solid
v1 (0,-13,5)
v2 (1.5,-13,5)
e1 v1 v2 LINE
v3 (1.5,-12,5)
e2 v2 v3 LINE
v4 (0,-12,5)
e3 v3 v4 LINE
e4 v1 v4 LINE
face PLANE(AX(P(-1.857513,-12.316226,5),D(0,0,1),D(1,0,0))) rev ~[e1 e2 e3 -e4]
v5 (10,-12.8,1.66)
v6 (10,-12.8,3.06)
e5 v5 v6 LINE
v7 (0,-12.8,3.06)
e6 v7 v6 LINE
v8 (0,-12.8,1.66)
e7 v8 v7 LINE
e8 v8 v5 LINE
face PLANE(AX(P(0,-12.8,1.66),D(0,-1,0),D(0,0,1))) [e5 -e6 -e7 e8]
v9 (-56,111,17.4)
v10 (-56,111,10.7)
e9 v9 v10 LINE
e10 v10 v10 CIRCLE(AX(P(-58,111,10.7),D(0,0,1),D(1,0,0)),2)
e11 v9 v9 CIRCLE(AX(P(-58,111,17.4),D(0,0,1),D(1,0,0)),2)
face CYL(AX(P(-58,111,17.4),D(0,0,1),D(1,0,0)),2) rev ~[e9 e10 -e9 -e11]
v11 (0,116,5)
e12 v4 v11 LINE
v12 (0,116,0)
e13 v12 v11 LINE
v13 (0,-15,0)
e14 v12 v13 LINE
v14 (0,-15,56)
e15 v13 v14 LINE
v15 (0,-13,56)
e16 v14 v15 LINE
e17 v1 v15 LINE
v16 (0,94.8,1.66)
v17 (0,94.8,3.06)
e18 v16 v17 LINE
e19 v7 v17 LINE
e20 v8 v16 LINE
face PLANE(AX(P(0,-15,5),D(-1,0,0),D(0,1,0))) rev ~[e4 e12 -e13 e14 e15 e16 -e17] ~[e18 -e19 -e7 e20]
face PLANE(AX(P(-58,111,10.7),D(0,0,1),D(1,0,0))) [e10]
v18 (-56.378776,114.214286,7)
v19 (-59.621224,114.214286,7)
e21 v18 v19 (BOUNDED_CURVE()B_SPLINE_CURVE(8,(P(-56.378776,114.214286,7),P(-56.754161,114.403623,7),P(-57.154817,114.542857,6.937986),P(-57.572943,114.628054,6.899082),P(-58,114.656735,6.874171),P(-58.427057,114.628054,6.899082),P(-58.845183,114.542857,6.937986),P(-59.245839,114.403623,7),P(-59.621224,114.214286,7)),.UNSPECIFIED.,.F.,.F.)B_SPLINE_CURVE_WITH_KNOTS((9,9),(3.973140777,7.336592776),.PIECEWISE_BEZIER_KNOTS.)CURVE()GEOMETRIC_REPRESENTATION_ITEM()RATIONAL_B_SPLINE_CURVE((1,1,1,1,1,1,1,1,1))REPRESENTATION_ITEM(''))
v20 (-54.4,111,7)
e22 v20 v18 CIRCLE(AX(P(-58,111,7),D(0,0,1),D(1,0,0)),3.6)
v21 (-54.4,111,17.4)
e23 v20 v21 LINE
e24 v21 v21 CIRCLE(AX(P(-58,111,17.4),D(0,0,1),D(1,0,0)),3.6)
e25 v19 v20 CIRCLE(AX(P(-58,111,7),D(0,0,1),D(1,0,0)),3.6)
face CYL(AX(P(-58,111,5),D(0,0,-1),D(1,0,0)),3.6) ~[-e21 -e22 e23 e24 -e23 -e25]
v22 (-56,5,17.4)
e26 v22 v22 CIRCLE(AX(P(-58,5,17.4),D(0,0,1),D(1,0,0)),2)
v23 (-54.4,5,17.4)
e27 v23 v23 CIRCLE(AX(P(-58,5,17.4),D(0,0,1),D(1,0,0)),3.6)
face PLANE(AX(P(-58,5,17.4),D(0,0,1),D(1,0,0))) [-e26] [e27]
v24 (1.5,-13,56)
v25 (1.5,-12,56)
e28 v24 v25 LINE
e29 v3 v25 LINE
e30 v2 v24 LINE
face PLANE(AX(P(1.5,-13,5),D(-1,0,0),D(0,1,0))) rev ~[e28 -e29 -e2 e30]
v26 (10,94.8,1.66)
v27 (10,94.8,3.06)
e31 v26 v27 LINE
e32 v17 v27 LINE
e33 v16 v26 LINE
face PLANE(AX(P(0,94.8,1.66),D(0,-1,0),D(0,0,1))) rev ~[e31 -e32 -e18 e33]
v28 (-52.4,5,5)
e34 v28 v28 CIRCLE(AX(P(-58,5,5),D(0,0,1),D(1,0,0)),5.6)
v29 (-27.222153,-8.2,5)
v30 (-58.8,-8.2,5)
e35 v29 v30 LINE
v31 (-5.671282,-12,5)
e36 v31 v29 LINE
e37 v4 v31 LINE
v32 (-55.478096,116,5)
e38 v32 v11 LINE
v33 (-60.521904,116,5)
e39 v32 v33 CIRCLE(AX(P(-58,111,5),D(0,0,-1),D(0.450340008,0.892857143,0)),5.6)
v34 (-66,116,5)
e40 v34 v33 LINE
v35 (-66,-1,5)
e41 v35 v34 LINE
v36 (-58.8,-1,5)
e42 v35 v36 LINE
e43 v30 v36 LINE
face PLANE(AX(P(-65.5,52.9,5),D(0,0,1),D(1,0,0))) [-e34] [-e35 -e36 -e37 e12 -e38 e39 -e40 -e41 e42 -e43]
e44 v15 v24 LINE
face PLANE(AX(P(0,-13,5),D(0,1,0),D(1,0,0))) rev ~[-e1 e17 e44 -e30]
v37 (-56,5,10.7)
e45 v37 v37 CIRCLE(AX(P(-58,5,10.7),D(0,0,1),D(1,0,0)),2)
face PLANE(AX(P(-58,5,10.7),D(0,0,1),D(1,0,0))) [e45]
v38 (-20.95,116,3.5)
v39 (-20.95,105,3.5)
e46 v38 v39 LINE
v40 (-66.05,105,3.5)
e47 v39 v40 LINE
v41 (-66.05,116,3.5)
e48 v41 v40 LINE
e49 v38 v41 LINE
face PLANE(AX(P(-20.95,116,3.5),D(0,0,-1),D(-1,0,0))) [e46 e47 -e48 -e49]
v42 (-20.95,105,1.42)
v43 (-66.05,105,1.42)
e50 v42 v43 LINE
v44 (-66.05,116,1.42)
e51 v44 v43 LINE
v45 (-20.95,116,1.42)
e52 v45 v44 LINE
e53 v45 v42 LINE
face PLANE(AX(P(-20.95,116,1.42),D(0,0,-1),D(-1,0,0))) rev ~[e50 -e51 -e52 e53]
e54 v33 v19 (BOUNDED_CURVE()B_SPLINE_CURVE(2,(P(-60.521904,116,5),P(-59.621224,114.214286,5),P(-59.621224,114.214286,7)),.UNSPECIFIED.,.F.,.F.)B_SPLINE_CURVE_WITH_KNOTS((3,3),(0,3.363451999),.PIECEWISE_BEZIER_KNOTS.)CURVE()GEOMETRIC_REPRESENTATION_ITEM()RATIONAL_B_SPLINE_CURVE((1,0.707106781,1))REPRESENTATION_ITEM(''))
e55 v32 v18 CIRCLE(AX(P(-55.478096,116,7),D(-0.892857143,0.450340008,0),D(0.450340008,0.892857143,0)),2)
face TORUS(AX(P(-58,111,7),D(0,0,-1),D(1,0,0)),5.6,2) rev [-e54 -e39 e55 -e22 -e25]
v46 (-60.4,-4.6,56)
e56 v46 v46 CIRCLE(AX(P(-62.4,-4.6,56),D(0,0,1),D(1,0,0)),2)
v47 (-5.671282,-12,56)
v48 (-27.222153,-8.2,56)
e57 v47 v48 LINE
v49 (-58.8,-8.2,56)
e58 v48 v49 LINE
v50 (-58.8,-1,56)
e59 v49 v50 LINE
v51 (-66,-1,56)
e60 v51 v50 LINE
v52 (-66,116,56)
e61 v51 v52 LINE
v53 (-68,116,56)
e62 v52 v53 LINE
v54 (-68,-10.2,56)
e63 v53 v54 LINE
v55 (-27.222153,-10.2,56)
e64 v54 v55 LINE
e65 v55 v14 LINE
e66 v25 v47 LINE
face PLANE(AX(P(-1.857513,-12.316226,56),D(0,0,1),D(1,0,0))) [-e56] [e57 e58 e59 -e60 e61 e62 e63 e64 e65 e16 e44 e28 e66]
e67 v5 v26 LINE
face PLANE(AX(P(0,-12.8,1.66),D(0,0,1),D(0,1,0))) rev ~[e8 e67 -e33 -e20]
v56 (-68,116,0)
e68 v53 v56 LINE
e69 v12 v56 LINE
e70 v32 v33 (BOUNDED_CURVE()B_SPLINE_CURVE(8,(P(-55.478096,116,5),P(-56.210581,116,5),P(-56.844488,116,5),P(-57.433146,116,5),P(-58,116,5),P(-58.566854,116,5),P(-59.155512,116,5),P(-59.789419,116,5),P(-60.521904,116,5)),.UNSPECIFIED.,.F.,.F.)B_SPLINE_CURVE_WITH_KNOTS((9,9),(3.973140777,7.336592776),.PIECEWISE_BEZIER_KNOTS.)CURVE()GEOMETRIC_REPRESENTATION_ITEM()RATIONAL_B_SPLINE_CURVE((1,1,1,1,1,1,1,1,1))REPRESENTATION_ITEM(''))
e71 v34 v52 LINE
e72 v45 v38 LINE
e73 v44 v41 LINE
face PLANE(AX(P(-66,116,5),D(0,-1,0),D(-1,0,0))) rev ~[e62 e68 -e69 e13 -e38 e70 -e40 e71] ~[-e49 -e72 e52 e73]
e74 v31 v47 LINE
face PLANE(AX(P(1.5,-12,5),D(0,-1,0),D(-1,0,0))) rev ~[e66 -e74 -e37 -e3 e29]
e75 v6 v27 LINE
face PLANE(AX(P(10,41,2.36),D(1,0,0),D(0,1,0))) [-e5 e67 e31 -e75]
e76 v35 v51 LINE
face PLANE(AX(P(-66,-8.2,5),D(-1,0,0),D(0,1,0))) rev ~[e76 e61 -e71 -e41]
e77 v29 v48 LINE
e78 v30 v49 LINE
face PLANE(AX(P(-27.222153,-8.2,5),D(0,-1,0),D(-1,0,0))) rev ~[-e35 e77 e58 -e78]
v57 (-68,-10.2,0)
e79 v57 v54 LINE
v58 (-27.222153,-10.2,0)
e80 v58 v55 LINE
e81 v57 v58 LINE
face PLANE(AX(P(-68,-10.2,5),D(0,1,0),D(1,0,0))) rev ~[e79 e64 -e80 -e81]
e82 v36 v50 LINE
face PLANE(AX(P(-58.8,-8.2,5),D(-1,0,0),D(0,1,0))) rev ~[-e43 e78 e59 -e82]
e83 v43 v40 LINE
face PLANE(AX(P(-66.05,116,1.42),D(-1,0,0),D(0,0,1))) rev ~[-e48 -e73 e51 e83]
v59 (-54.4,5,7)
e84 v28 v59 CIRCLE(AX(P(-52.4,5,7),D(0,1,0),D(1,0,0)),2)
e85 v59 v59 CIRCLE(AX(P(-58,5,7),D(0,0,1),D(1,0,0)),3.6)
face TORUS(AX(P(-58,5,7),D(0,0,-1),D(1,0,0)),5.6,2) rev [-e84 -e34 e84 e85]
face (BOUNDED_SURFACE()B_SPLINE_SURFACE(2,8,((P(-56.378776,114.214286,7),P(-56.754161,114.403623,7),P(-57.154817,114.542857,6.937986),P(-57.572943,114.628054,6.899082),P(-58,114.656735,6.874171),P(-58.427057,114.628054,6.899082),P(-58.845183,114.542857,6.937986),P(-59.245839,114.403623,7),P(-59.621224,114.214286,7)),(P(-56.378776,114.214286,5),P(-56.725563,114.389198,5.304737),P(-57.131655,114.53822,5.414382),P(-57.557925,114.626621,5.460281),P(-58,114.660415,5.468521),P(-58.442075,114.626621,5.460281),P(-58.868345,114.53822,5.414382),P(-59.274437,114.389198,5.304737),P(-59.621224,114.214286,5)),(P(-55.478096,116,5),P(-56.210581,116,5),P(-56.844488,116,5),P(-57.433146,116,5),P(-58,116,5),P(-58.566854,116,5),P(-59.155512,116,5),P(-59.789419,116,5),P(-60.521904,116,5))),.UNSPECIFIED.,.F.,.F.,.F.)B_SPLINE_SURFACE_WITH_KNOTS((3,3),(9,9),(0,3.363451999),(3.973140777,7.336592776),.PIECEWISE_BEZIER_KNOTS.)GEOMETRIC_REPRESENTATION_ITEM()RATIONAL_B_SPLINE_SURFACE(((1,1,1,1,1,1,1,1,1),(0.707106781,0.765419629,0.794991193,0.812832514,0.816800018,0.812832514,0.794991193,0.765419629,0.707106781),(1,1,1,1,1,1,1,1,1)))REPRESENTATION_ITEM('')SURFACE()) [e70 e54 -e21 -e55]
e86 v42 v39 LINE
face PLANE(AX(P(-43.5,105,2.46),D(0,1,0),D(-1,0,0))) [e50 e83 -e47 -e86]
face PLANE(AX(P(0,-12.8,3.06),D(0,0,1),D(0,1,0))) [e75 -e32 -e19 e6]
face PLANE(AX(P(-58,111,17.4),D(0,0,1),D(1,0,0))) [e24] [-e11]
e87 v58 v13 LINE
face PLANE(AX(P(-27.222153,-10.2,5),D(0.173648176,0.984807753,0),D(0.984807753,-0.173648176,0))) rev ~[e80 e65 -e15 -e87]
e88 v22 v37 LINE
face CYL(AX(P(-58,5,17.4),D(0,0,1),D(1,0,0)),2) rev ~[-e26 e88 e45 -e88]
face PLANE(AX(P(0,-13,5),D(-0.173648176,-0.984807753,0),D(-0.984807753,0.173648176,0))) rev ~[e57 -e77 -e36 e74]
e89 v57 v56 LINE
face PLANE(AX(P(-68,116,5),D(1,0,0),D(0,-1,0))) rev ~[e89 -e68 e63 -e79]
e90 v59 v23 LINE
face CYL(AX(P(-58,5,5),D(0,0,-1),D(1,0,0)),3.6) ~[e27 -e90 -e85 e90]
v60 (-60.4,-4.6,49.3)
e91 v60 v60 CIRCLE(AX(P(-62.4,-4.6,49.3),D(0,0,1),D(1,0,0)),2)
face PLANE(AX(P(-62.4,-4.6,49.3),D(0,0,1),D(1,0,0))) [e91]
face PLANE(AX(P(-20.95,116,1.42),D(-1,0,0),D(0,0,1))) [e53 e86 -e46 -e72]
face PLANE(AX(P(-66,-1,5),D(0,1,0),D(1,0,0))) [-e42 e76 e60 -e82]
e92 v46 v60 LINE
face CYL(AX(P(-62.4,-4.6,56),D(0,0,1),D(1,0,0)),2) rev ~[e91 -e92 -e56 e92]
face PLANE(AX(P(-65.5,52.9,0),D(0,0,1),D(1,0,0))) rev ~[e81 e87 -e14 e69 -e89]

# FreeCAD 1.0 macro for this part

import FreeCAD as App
import Part
import Sketcher
from FreeCAD import Vector
Q = App.Units.Quantity


def edges_at(feature, points):
    """Names of the edges that pass closest to the given points."""
    edges = feature.Shape.Edges
    near = lambda p: min(range(len(edges)), key=lambda i: edges[i].distToShape(Part.Vertex(*p))[0])
    return sorted({f"Edge{near(p) + 1}" for p in points})


def add_polygon(sketch, points):
    """Adds a closed chain of lines whose ends are joined by coincident constraints."""
    first, n = sketch.GeometryCount, len(points)
    for a, b in zip(points, points[1:] + points[:1]):
        sketch.addGeometry(Part.LineSegment(App.Vector(*a, 0), App.Vector(*b, 0)), False)
    for i in range(n):
        sketch.addConstraint(Sketcher.Constraint("Coincident", first + i, 2, first + (i + 1) % n, 1))

doc = App.newDocument("Part")
params = doc.addObject("Spreadsheet::Sheet", "Params")
for row, (alias, value) in enumerate([
    ("sketch1_width", "63 mm"),
    ("sketch1_height", "116 mm"),
    ("pad1_length", "5 mm"),
    ("sketch2_width", "63 mm"),
    ("sketch2_height", "15 mm"),
    ("sketch2_height2", "10.2 mm"),
    ("pad2_length", "5 mm"),
    ("sketch3_width", "5 mm"),
    ("sketch3_height", "126.2 mm"),
    ("pad3_length", "5 mm"),
    ("sketch4_width", "2 mm"),
    ("sketch4_height", "126.2 mm"),
    ("pad4_length", "51 mm"),
    ("sketch5_width", "7.2 mm"),
    ("pad5_length", "51 mm"),
    ("sketch6_diameter", "4 mm"),
    ("pocket1_length", "6.7 mm"),
    ("sketch7_width", "107.6 mm"),
    ("sketch7_height", "1.4 mm"),
    ("pad6_length", "10 mm"),
    ("sketch8_diameter", "7.2 mm"),
    ("pad7_length", "12.4 mm"),
    ("sketch9_diameter", "4 mm"),
    ("pocket2_length", "6.7 mm"),
    ("sketch10_width", "45.1 mm"),
    ("sketch10_height", "2.08 mm"),
    ("pocket3_length", "11 mm"),
    ("sketch11_height", "1 mm"),
    ("sketch11_width", "1.5 mm"),
    ("pad8_length", "51 mm"),
    ("fillet_radius", "2 mm"),
], start=1):
    params.set(f"A{row}", alias)
    params.set(f"B{row}", "=" + value)
    params.setAlias(f"B{row}", alias)

body = doc.addObject("PartDesign::Body", "Body")

# Sketch on XY plane
sketch1 = doc.addObject("Sketcher::SketchObject", "Sketch")
body.addObject(sketch1)
sketch1.AttachmentSupport = (doc.XY_Plane, [""])
sketch1.MapMode = "FlatFace"
add_polygon(sketch1, [(-63, 116), (-63, 0), (0, 0), (0, 116)])  # lines 0-3
sketch1.addConstraint([
    Sketcher.Constraint("Vertical", 0),
    Sketcher.Constraint("Horizontal", 1),
    Sketcher.Constraint("Vertical", 2),
    Sketcher.Constraint("Horizontal", 3),
    Sketcher.Constraint("Coincident", 1, 2, -1, 1),
    Sketcher.Constraint("DistanceX", 1, 1, 1, 2, Q("63 mm")),
    Sketcher.Constraint("DistanceY", 0, 2, 0, 1, Q("116 mm")),
])
sketch1.setExpression("Constraints[9]", "Params.sketch1_width")
sketch1.setExpression("Constraints[10]", "Params.sketch1_height")
pad1 = doc.addObject("PartDesign::Pad", "Pad")
body.addObject(pad1)
pad1.Profile = sketch1
pad1.setExpression("Length", "Params.pad1_length")

# Sketch on XY plane
sketch2 = doc.addObject("Sketcher::SketchObject", "Sketch001")
body.addObject(sketch2)
sketch2.AttachmentSupport = (doc.XY_Plane, [""])
sketch2.MapMode = "FlatFace"
add_polygon(sketch2, [(0, 0), (-63, 0), (-63, -10.2), (-27.222153, -10.2), (0, -15)])  # lines 0-4
sketch2.addConstraint([
    Sketcher.Constraint("Horizontal", 0),
    Sketcher.Constraint("Vertical", 1),
    Sketcher.Constraint("Horizontal", 2),
    Sketcher.Constraint("Vertical", 4),
    Sketcher.Constraint("Coincident", 4, 2, -1, 1),
    Sketcher.Constraint("DistanceX", 0, 2, 0, 1, Q("63 mm")),
    Sketcher.Constraint("DistanceY", 4, 1, 4, 2, Q("15 mm")),
    Sketcher.Constraint("Angle", 3, Q("-10 deg")),
    Sketcher.Constraint("DistanceY", 1, 2, 1, 1, Q("10.2 mm")),
])
sketch2.setExpression("Constraints[10]", "Params.sketch2_width")
sketch2.setExpression("Constraints[11]", "Params.sketch2_height")
sketch2.setExpression("Constraints[13]", "Params.sketch2_height2")
pad2 = doc.addObject("PartDesign::Pad", "Pad001")
body.addObject(pad2)
pad2.Profile = sketch2
pad2.setExpression("Length", "Params.pad2_length")

# Sketch on XY plane
sketch3 = doc.addObject("Sketcher::SketchObject", "Sketch002")
body.addObject(sketch3)
sketch3.AttachmentSupport = (doc.XY_Plane, [""])
sketch3.MapMode = "FlatFace"
add_polygon(sketch3, [(-68, 116), (-68, -10.2), (-63, -10.2), (-63, 116)])  # lines 0-3
sketch3.addConstraint([
    Sketcher.Constraint("Vertical", 0),
    Sketcher.Constraint("Horizontal", 1),
    Sketcher.Constraint("Vertical", 2),
    Sketcher.Constraint("Horizontal", 3),
    Sketcher.Constraint("DistanceX", 1, 1, 1, 2, Q("5 mm")),
    Sketcher.Constraint("DistanceY", 0, 2, 0, 1, Q("126.2 mm")),
    Sketcher.Constraint("DistanceX", 0, 2, -1, 1, Q("68 mm")),
    Sketcher.Constraint("DistanceY", -1, 1, 2, 2, Q("116 mm")),
])
sketch3.setExpression("Constraints[8]", "Params.sketch3_width")
sketch3.setExpression("Constraints[9]", "Params.sketch3_height")
pad3 = doc.addObject("PartDesign::Pad", "Pad002")
body.addObject(pad3)
pad3.Profile = sketch3
pad3.setExpression("Length", "Params.pad3_length")

# Sketch on XY plane
sketch4 = doc.addObject("Sketcher::SketchObject", "Sketch003")
body.addObject(sketch4)
sketch4.AttachmentSupport = (doc.XY_Plane, [""])
sketch4.MapMode = "FlatFace"
sketch4.AttachmentOffset = App.Placement(Vector(0, 0, 5), App.Rotation())
add_polygon(sketch4, [(-68, 116), (-68, -10.2), (-27.222153, -10.2), (0, -15), (0, -13), (-27.222153, -8.2), (-66, -8.2), (-66, 116)])  # lines 0-7
sketch4.addConstraint([
    Sketcher.Constraint("Vertical", 0),
    Sketcher.Constraint("Horizontal", 1),
    Sketcher.Constraint("Vertical", 3),
    Sketcher.Constraint("Horizontal", 5),
    Sketcher.Constraint("Vertical", 6),
    Sketcher.Constraint("Horizontal", 7),
    Sketcher.Constraint("PointOnObject", 2, 2, -2),
    Sketcher.Constraint("Parallel", 2, 4),
    Sketcher.Constraint("Vertical", 1, 2, 4, 2),
    Sketcher.Constraint("Equal", 7, 3),
    Sketcher.Constraint("DistanceX", 7, 2, 7, 1, Q("2 mm")),
    Sketcher.Constraint("Angle", 2, Q("-10 deg")),
    Sketcher.Constraint("DistanceY", 0, 2, 0, 1, Q("126.2 mm")),
    Sketcher.Constraint("DistanceX", 0, 2, -1, 1, Q("68 mm")),
    Sketcher.Constraint("DistanceY", 2, 2, -1, 1, Q("15 mm")),
    Sketcher.Constraint("DistanceY", -1, 1, 6, 2, Q("116 mm")),
])
sketch4.setExpression("Constraints[18]", "Params.sketch4_width")
sketch4.setExpression("Constraints[20]", "Params.sketch4_height")
pad4 = doc.addObject("PartDesign::Pad", "Pad003")
body.addObject(pad4)
pad4.Profile = sketch4
pad4.setExpression("Length", "Params.pad4_length")

# Sketch on XY plane
sketch5 = doc.addObject("Sketcher::SketchObject", "Sketch004")
body.addObject(sketch5)
sketch5.AttachmentSupport = (doc.XY_Plane, [""])
sketch5.MapMode = "FlatFace"
sketch5.AttachmentOffset = App.Placement(Vector(0, 0, 5), App.Rotation())
add_polygon(sketch5, [(-66, -1), (-66, -8.2), (-58.8, -8.2), (-58.8, -1)])  # lines 0-3
sketch5.addConstraint([
    Sketcher.Constraint("Vertical", 0),
    Sketcher.Constraint("Horizontal", 1),
    Sketcher.Constraint("Vertical", 2),
    Sketcher.Constraint("Horizontal", 3),
    Sketcher.Constraint("Equal", 3, 0),
    Sketcher.Constraint("DistanceX", 1, 1, 1, 2, Q("7.2 mm")),
    Sketcher.Constraint("DistanceX", 0, 2, -1, 1, Q("66 mm")),
    Sketcher.Constraint("DistanceY", 2, 2, -1, 1, Q("1 mm")),
])
sketch5.setExpression("Constraints[9]", "Params.sketch5_width")
pad5 = doc.addObject("PartDesign::Pad", "Pad004")
body.addObject(pad5)
pad5.Profile = sketch5
pad5.setExpression("Length", "Params.pad5_length")

# Sketch on XY plane
sketch6 = doc.addObject("Sketcher::SketchObject", "Sketch005")
body.addObject(sketch6)
sketch6.AttachmentSupport = (doc.XY_Plane, [""])
sketch6.MapMode = "FlatFace"
sketch6.AttachmentOffset = App.Placement(Vector(0, 0, 56), App.Rotation())
sketch6.addGeometry(Part.Circle(Vector(-62.4, -4.6, 0), Vector(0, 0, 1), 2), False)
sketch6.addConstraint([
    Sketcher.Constraint("Diameter", 0, Q("4 mm")),
    Sketcher.Constraint("DistanceX", 0, 3, -1, 1, Q("62.4 mm")),
    Sketcher.Constraint("DistanceY", 0, 3, -1, 1, Q("4.6 mm")),
])
sketch6.setExpression("Constraints[0]", "Params.sketch6_diameter")
pocket1 = doc.addObject("PartDesign::Pocket", "Pocket")
body.addObject(pocket1)
pocket1.Profile = sketch6
pocket1.setExpression("Length", "Params.pocket1_length")

# Sketch on YZ plane
sketch7 = doc.addObject("Sketcher::SketchObject", "Sketch006")
body.addObject(sketch7)
sketch7.AttachmentSupport = (doc.YZ_Plane, [""])
sketch7.MapMode = "FlatFace"
add_polygon(sketch7, [(-12.8, 3.06), (-12.8, 1.66), (94.8, 1.66), (94.8, 3.06)])  # lines 0-3
sketch7.addConstraint([
    Sketcher.Constraint("Vertical", 0),
    Sketcher.Constraint("Horizontal", 1),
    Sketcher.Constraint("Vertical", 2),
    Sketcher.Constraint("Horizontal", 3),
    Sketcher.Constraint("DistanceX", 1, 1, 1, 2, Q("107.6 mm")),
    Sketcher.Constraint("DistanceY", 0, 2, 0, 1, Q("1.4 mm")),
    Sketcher.Constraint("DistanceX", 0, 2, -1, 1, Q("12.8 mm")),
    Sketcher.Constraint("DistanceY", -1, 1, 0, 2, Q("1.66 mm")),
])
sketch7.setExpression("Constraints[8]", "Params.sketch7_width")
sketch7.setExpression("Constraints[9]", "Params.sketch7_height")
pad6 = doc.addObject("PartDesign::Pad", "Pad005")
body.addObject(pad6)
pad6.Profile = sketch7
pad6.setExpression("Length", "Params.pad6_length")

# Sketch on XY plane
sketch8 = doc.addObject("Sketcher::SketchObject", "Sketch007")
body.addObject(sketch8)
sketch8.AttachmentSupport = (doc.XY_Plane, [""])
sketch8.MapMode = "FlatFace"
sketch8.AttachmentOffset = App.Placement(Vector(0, 0, 5), App.Rotation())
sketch8.addGeometry([
    Part.Circle(Vector(-58, 5, 0), Vector(0, 0, 1), 3.6),
    Part.Circle(Vector(-58, 111, 0), Vector(0, 0, 1), 3.6),
], False)
sketch8.addConstraint([
    Sketcher.Constraint("Equal", 0, 1),
    Sketcher.Constraint("Vertical", 0, 3, 1, 3),
    Sketcher.Constraint("Diameter", 0, Q("7.2 mm")),
    Sketcher.Constraint("DistanceX", 0, 3, -1, 1, Q("58 mm")),
    Sketcher.Constraint("DistanceY", -1, 1, 0, 3, Q("5 mm")),
    Sketcher.Constraint("DistanceY", -1, 1, 1, 3, Q("111 mm")),
])
sketch8.setExpression("Constraints[2]", "Params.sketch8_diameter")
pad7 = doc.addObject("PartDesign::Pad", "Pad006")
body.addObject(pad7)
pad7.Profile = sketch8
pad7.setExpression("Length", "Params.pad7_length")

# Sketch on XY plane
sketch9 = doc.addObject("Sketcher::SketchObject", "Sketch008")
body.addObject(sketch9)
sketch9.AttachmentSupport = (doc.XY_Plane, [""])
sketch9.MapMode = "FlatFace"
sketch9.AttachmentOffset = App.Placement(Vector(0, 0, 17.4), App.Rotation())
sketch9.addGeometry([
    Part.Circle(Vector(-58, 5, 0), Vector(0, 0, 1), 2),
    Part.Circle(Vector(-58, 111, 0), Vector(0, 0, 1), 2),
], False)
sketch9.addConstraint([
    Sketcher.Constraint("Equal", 0, 1),
    Sketcher.Constraint("Vertical", 0, 3, 1, 3),
    Sketcher.Constraint("Diameter", 0, Q("4 mm")),
    Sketcher.Constraint("DistanceX", 0, 3, -1, 1, Q("58 mm")),
    Sketcher.Constraint("DistanceY", -1, 1, 0, 3, Q("5 mm")),
    Sketcher.Constraint("DistanceY", -1, 1, 1, 3, Q("111 mm")),
])
sketch9.setExpression("Constraints[2]", "Params.sketch9_diameter")
pocket2 = doc.addObject("PartDesign::Pocket", "Pocket001")
body.addObject(pocket2)
pocket2.Profile = sketch9
pocket2.setExpression("Length", "Params.pocket2_length")

# Sketch on XZ plane
sketch10 = doc.addObject("Sketcher::SketchObject", "Sketch009")
body.addObject(sketch10)
sketch10.AttachmentSupport = (doc.XZ_Plane, [""])
sketch10.MapMode = "FlatFace"
sketch10.AttachmentOffset = App.Placement(Vector(0, 0, -116), App.Rotation())
add_polygon(sketch10, [(-20.95, 3.5), (-20.95, 1.42), (-66.05, 1.42), (-66.05, 3.5)])  # lines 0-3
sketch10.addConstraint([
    Sketcher.Constraint("Vertical", 0),
    Sketcher.Constraint("Horizontal", 1),
    Sketcher.Constraint("Vertical", 2),
    Sketcher.Constraint("Horizontal", 3),
    Sketcher.Constraint("DistanceX", 1, 2, 1, 1, Q("45.1 mm")),
    Sketcher.Constraint("DistanceY", 0, 2, 0, 1, Q("2.08 mm")),
    Sketcher.Constraint("DistanceY", -1, 1, 2, 2, Q("3.5 mm")),
    Sketcher.Constraint("DistanceX", 0, 2, -1, 1, Q("20.95 mm")),
])
sketch10.setExpression("Constraints[8]", "Params.sketch10_width")
sketch10.setExpression("Constraints[9]", "Params.sketch10_height")
pocket3 = doc.addObject("PartDesign::Pocket", "Pocket002")
body.addObject(pocket3)
pocket3.Profile = sketch10
pocket3.setExpression("Length", "Params.pocket3_length")
pocket3.Reversed = True

# Sketch on XY plane
sketch11 = doc.addObject("Sketcher::SketchObject", "Sketch010")
body.addObject(sketch11)
sketch11.AttachmentSupport = (doc.XY_Plane, [""])
sketch11.MapMode = "FlatFace"
sketch11.AttachmentOffset = App.Placement(Vector(0, 0, 5), App.Rotation())
add_polygon(sketch11, [(-5.671282, -12), (0, -13), (1.5, -13), (1.5, -12)])  # lines 0-3
sketch11.addConstraint([
    Sketcher.Constraint("Horizontal", 1),
    Sketcher.Constraint("Vertical", 2),
    Sketcher.Constraint("Horizontal", 3),
    Sketcher.Constraint("PointOnObject", 0, 2, -2),
    Sketcher.Constraint("DistanceY", 2, 1, 2, 2, Q("1 mm")),
    Sketcher.Constraint("Angle", 0, Q("-10 deg")),
    Sketcher.Constraint("DistanceX", 1, 1, 1, 2, Q("1.5 mm")),
    Sketcher.Constraint("DistanceY", 0, 2, -1, 1, Q("13 mm")),
])
sketch11.setExpression("Constraints[8]", "Params.sketch11_height")
sketch11.setExpression("Constraints[10]", "Params.sketch11_width")
pad8 = doc.addObject("PartDesign::Pad", "Pad007")
body.addObject(pad8)
pad8.Profile = sketch11
pad8.setExpression("Length", "Params.pad8_length")
doc.recompute()

fillet = doc.addObject("PartDesign::Fillet", "Fillet")
body.addObject(fillet)
fillet.Base = (pad8, edges_at(pad8, [(-61.6, 111, 5), (-61.6, 5, 5)]))
fillet.setExpression("Radius", "Params.fillet_radius")

doc.recompute()
